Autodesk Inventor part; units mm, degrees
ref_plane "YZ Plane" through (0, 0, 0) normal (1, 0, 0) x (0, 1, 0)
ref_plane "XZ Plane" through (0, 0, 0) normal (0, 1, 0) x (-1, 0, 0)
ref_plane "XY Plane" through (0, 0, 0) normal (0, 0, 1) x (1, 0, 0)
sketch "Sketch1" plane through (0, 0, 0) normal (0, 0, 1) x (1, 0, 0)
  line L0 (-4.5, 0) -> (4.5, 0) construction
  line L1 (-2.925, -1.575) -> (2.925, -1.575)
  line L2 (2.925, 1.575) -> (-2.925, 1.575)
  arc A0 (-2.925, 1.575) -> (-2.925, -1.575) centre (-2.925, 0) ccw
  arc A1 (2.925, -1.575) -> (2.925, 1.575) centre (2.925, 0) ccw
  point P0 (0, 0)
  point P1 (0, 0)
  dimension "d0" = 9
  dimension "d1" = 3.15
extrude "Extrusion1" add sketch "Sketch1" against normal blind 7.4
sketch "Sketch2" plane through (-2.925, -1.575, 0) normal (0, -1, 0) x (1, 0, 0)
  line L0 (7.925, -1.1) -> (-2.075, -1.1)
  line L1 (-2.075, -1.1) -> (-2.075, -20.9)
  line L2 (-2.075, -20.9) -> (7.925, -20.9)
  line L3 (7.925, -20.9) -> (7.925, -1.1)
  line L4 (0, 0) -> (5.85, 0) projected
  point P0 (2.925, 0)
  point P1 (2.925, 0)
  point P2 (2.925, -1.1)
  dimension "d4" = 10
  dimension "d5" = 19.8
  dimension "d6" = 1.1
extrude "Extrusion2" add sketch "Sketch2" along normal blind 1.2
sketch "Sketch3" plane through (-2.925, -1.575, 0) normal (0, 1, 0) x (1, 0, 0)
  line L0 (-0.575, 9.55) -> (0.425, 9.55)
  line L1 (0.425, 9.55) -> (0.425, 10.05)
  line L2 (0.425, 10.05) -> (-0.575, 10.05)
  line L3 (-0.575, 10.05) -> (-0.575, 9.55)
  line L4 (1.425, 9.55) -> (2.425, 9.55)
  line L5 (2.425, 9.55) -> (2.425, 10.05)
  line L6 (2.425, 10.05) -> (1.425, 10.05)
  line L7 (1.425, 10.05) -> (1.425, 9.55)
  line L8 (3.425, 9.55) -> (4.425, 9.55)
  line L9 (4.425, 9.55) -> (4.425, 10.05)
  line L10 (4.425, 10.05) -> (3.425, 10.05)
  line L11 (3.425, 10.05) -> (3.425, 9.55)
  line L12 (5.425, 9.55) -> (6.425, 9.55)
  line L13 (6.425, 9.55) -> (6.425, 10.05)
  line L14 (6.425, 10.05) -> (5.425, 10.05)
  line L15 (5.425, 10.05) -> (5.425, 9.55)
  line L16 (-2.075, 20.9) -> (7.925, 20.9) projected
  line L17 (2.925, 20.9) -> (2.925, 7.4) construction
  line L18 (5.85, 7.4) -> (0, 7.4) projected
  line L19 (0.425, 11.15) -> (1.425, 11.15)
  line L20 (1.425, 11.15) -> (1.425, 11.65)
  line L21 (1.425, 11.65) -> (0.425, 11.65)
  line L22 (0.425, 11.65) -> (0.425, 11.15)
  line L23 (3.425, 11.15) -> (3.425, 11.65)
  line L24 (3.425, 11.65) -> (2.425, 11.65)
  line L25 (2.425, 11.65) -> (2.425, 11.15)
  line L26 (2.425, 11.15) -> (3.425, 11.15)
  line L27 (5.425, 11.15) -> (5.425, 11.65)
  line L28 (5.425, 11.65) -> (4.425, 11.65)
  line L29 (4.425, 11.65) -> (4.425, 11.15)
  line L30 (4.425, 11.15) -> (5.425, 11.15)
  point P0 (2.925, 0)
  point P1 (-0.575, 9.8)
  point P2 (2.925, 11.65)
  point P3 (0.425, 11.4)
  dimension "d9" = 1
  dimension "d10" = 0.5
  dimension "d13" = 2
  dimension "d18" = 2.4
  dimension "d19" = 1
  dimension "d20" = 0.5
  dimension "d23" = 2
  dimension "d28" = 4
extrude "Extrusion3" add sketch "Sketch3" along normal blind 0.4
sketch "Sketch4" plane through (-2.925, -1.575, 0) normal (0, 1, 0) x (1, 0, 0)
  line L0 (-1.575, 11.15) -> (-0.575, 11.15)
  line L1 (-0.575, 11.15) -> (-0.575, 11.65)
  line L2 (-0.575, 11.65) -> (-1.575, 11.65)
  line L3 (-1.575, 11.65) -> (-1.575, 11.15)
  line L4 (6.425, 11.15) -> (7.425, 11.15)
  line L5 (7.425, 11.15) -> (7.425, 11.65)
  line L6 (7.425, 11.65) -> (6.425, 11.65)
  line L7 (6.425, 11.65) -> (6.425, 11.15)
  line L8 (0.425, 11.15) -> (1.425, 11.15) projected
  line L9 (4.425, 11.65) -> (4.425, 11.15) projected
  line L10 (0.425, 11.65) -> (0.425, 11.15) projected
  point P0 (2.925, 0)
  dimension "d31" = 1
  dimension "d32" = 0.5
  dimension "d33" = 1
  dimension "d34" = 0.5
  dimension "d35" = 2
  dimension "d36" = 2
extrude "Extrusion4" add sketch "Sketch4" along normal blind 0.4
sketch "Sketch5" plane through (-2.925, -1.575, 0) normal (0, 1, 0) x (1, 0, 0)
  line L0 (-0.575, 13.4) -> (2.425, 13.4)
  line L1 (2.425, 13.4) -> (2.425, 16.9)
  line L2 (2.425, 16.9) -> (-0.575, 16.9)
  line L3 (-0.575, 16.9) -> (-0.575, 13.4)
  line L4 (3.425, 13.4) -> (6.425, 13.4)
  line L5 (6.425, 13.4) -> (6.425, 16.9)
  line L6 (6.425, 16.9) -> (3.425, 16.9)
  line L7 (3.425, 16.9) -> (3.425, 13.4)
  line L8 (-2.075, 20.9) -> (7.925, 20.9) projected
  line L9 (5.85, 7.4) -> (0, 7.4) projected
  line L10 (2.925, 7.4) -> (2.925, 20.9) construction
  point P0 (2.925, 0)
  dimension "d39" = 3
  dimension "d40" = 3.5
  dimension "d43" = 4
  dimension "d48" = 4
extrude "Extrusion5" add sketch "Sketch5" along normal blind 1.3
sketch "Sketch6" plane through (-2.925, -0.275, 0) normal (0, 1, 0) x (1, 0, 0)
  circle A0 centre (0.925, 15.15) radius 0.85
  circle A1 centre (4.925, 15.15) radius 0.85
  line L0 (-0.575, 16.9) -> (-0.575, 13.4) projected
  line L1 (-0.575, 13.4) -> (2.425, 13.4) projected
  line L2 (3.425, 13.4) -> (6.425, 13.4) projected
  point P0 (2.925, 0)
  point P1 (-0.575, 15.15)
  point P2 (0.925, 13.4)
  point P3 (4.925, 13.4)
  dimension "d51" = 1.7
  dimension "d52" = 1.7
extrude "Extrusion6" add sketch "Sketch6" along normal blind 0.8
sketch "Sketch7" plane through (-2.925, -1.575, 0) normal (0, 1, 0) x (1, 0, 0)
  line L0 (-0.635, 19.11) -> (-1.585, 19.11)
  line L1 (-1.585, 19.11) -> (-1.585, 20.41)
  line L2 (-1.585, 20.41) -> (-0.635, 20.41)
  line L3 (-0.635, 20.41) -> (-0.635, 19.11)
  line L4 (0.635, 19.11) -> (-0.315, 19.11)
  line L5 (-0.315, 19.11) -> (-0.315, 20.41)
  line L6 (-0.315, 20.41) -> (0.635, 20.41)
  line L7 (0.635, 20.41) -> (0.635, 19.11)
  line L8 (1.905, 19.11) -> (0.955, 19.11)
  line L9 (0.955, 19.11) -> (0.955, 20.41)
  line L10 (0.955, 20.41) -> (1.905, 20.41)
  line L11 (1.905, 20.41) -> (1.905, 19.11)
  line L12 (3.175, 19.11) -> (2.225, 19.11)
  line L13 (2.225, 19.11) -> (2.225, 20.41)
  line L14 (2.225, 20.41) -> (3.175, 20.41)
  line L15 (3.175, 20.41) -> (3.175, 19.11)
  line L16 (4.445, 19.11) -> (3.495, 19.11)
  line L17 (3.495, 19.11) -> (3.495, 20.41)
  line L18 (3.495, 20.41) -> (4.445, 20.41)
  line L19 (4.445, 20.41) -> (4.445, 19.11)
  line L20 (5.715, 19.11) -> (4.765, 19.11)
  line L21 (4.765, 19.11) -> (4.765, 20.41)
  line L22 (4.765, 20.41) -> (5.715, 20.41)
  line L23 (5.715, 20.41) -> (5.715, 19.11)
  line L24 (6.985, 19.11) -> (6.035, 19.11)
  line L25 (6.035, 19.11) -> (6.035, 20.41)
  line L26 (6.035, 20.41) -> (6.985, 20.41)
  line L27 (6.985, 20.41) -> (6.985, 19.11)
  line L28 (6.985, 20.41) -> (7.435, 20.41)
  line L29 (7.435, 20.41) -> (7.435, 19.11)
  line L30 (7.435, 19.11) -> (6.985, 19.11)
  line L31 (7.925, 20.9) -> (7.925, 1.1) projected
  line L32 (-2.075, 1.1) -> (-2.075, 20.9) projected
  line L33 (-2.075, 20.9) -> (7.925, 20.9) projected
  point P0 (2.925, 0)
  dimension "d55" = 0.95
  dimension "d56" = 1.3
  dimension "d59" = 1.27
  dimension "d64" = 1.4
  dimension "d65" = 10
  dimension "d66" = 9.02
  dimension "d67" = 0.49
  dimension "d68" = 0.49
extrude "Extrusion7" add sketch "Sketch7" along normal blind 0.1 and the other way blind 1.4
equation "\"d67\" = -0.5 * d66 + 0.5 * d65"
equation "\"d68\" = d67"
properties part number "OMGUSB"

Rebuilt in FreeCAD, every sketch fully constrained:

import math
import FreeCAD as App
import Part
import Sketcher

V = App.Vector

doc = App.newDocument("Part")
body = doc.addObject("PartDesign::Body", "Body")

# Sketch on XY plane
sketch1 = body.newObject("Sketcher::SketchObject", "Sketch")
sketch1.AttachmentSupport = (doc.getObject("XY_Plane"), [""])
sketch1.MapMode = "FlatFace"
sketch1.addGeometry(Part.ArcOfCircle(Part.Circle(V(-2.925, 0, 0), V(0, 0, 1), 1.575), math.radians(90), math.radians(270)), False)
sketch1.addGeometry(Part.LineSegment(V(-2.925, -1.575, 0), V(2.925, -1.575, 0)), False)
sketch1.addGeometry(Part.ArcOfCircle(Part.Circle(V(2.925, 0, 0), V(0, 0, 1), 1.575), math.radians(-90), math.radians(90)), False)
sketch1.addGeometry(Part.LineSegment(V(2.925, 1.575, 0), V(-2.925, 1.575, 0)), False)
sketch1.addConstraint(Sketcher.Constraint("Tangent", 0, 2, 1, 1))
sketch1.addConstraint(Sketcher.Constraint("Tangent", 1, 2, 2, 1))
sketch1.addConstraint(Sketcher.Constraint("Tangent", 2, 2, 3, 1))
sketch1.addConstraint(Sketcher.Constraint("Tangent", 3, 2, 0, 1))
sketch1.addConstraint(Sketcher.Constraint("Horizontal", 1))
sketch1.addConstraint(Sketcher.Constraint("Horizontal", 3))
sketch1.addConstraint(Sketcher.Constraint("Symmetric", 0, 3, 2, 3, -1, 1))
sketch1.addConstraint(Sketcher.Constraint("Radius", 0, 1.575))
sketch1.addConstraint(Sketcher.Constraint("DistanceX", 1, 1, 1, 2, 5.85))
pad1 = body.newObject("PartDesign::Pad", "Pad")
pad1.Profile = sketch1
pad1.Length = 7.4
pad1.Reversed = True

# Sketch on XZ plane
sketch2 = body.newObject("Sketcher::SketchObject", "Sketch001")
sketch2.AttachmentSupport = (doc.getObject("XZ_Plane"), [""])
sketch2.MapMode = "FlatFace"
sketch2.AttachmentOffset = App.Placement(V(0, 0, 1.575), App.Rotation())
sketch2.addGeometry(Part.LineSegment(V(5, -20.9, 0), V(5, -1.1, 0)), False)
sketch2.addGeometry(Part.LineSegment(V(5, -1.1, 0), V(-5, -1.1, 0)), False)
sketch2.addGeometry(Part.LineSegment(V(-5, -1.1, 0), V(-5, -20.9, 0)), False)
sketch2.addGeometry(Part.LineSegment(V(-5, -20.9, 0), V(5, -20.9, 0)), False)
sketch2.addConstraint(Sketcher.Constraint("Coincident", 0, 2, 1, 1))
sketch2.addConstraint(Sketcher.Constraint("Coincident", 1, 2, 2, 1))
sketch2.addConstraint(Sketcher.Constraint("Coincident", 2, 2, 3, 1))
sketch2.addConstraint(Sketcher.Constraint("Coincident", 3, 2, 0, 1))
sketch2.addConstraint(Sketcher.Constraint("Vertical", 0))
sketch2.addConstraint(Sketcher.Constraint("Horizontal", 1))
sketch2.addConstraint(Sketcher.Constraint("Vertical", 2))
sketch2.addConstraint(Sketcher.Constraint("Horizontal", 3))
sketch2.addConstraint(Sketcher.Constraint("DistanceX", 1, 2, 1, 1, 10.0))
sketch2.addConstraint(Sketcher.Constraint("DistanceY", 0, 1, 0, 2, 19.8))
sketch2.addConstraint(Sketcher.Constraint("DistanceY", 0, 2, -1, 1, 1.1))
sketch2.addConstraint(Sketcher.Constraint("DistanceX", -1, 1, 0, 2, 5.0))
pad2 = body.newObject("PartDesign::Pad", "Pad001")
pad2.Profile = sketch2
pad2.Length = 1.2

# Sketch on XZ plane
sketch3 = body.newObject("Sketcher::SketchObject", "Sketch002")
sketch3.AttachmentSupport = (doc.getObject("XZ_Plane"), [""])
sketch3.MapMode = "FlatFace"
sketch3.AttachmentOffset = App.Placement(V(0, 0, 1.575), App.Rotation())
sketch3.addGeometry(Part.LineSegment(V(-3.5, -10.05, 0), V(-3.5, -9.55, 0)), False)
sketch3.addGeometry(Part.LineSegment(V(-3.5, -9.55, 0), V(-2.5, -9.55, 0)), False)
sketch3.addGeometry(Part.LineSegment(V(-2.5, -9.55, 0), V(-2.5, -10.05, 0)), False)
sketch3.addGeometry(Part.LineSegment(V(-2.5, -10.05, 0), V(-3.5, -10.05, 0)), False)
sketch3.addGeometry(Part.LineSegment(V(-1.5, -10.05, 0), V(-1.5, -9.55, 0)), False)
sketch3.addGeometry(Part.LineSegment(V(-1.5, -9.55, 0), V(-0.5, -9.55, 0)), False)
sketch3.addGeometry(Part.LineSegment(V(-0.5, -9.55, 0), V(-0.5, -10.05, 0)), False)
sketch3.addGeometry(Part.LineSegment(V(-0.5, -10.05, 0), V(-1.5, -10.05, 0)), False)
sketch3.addGeometry(Part.LineSegment(V(0.5, -10.05, 0), V(0.5, -9.55, 0)), False)
sketch3.addGeometry(Part.LineSegment(V(0.5, -9.55, 0), V(1.5, -9.55, 0)), False)
sketch3.addGeometry(Part.LineSegment(V(1.5, -9.55, 0), V(1.5, -10.05, 0)), False)
sketch3.addGeometry(Part.LineSegment(V(1.5, -10.05, 0), V(0.5, -10.05, 0)), False)
sketch3.addGeometry(Part.LineSegment(V(2.5, -10.05, 0), V(2.5, -9.55, 0)), False)
sketch3.addGeometry(Part.LineSegment(V(2.5, -9.55, 0), V(3.5, -9.55, 0)), False)
sketch3.addGeometry(Part.LineSegment(V(3.5, -9.55, 0), V(3.5, -10.05, 0)), False)
sketch3.addGeometry(Part.LineSegment(V(3.5, -10.05, 0), V(2.5, -10.05, 0)), False)
sketch3.addGeometry(Part.LineSegment(V(-2.5, -11.65, 0), V(-2.5, -11.15, 0)), False)
sketch3.addGeometry(Part.LineSegment(V(-2.5, -11.15, 0), V(-1.5, -11.15, 0)), False)
sketch3.addGeometry(Part.LineSegment(V(-1.5, -11.15, 0), V(-1.5, -11.65, 0)), False)
sketch3.addGeometry(Part.LineSegment(V(-1.5, -11.65, 0), V(-2.5, -11.65, 0)), False)
sketch3.addGeometry(Part.LineSegment(V(-0.5, -11.15, 0), V(0.5, -11.15, 0)), False)
sketch3.addGeometry(Part.LineSegment(V(0.5, -11.15, 0), V(0.5, -11.65, 0)), False)
sketch3.addGeometry(Part.LineSegment(V(0.5, -11.65, 0), V(-0.5, -11.65, 0)), False)
sketch3.addGeometry(Part.LineSegment(V(-0.5, -11.65, 0), V(-0.5, -11.15, 0)), False)
sketch3.addGeometry(Part.LineSegment(V(1.5, -11.15, 0), V(2.5, -11.15, 0)), False)
sketch3.addGeometry(Part.LineSegment(V(2.5, -11.15, 0), V(2.5, -11.65, 0)), False)
sketch3.addGeometry(Part.LineSegment(V(2.5, -11.65, 0), V(1.5, -11.65, 0)), False)
sketch3.addGeometry(Part.LineSegment(V(1.5, -11.65, 0), V(1.5, -11.15, 0)), False)
sketch3.addConstraint(Sketcher.Constraint("Coincident", 0, 2, 1, 1))
sketch3.addConstraint(Sketcher.Constraint("Coincident", 1, 2, 2, 1))
sketch3.addConstraint(Sketcher.Constraint("Coincident", 2, 2, 3, 1))
sketch3.addConstraint(Sketcher.Constraint("Coincident", 3, 2, 0, 1))
sketch3.addConstraint(Sketcher.Constraint("Coincident", 4, 2, 5, 1))
sketch3.addConstraint(Sketcher.Constraint("Coincident", 5, 2, 6, 1))
sketch3.addConstraint(Sketcher.Constraint("Coincident", 6, 2, 7, 1))
sketch3.addConstraint(Sketcher.Constraint("Coincident", 7, 2, 4, 1))
sketch3.addConstraint(Sketcher.Constraint("Coincident", 8, 2, 9, 1))
sketch3.addConstraint(Sketcher.Constraint("Coincident", 9, 2, 10, 1))
sketch3.addConstraint(Sketcher.Constraint("Coincident", 10, 2, 11, 1))
sketch3.addConstraint(Sketcher.Constraint("Coincident", 11, 2, 8, 1))
sketch3.addConstraint(Sketcher.Constraint("Coincident", 12, 2, 13, 1))
sketch3.addConstraint(Sketcher.Constraint("Coincident", 13, 2, 14, 1))
sketch3.addConstraint(Sketcher.Constraint("Coincident", 14, 2, 15, 1))
sketch3.addConstraint(Sketcher.Constraint("Coincident", 15, 2, 12, 1))
sketch3.addConstraint(Sketcher.Constraint("Coincident", 16, 2, 17, 1))
sketch3.addConstraint(Sketcher.Constraint("Coincident", 17, 2, 18, 1))
sketch3.addConstraint(Sketcher.Constraint("Coincident", 18, 2, 19, 1))
sketch3.addConstraint(Sketcher.Constraint("Coincident", 19, 2, 16, 1))
sketch3.addConstraint(Sketcher.Constraint("Coincident", 20, 2, 21, 1))
sketch3.addConstraint(Sketcher.Constraint("Coincident", 21, 2, 22, 1))
sketch3.addConstraint(Sketcher.Constraint("Coincident", 22, 2, 23, 1))
sketch3.addConstraint(Sketcher.Constraint("Coincident", 23, 2, 20, 1))
sketch3.addConstraint(Sketcher.Constraint("Coincident", 24, 2, 25, 1))
sketch3.addConstraint(Sketcher.Constraint("Coincident", 25, 2, 26, 1))
sketch3.addConstraint(Sketcher.Constraint("Coincident", 26, 2, 27, 1))
sketch3.addConstraint(Sketcher.Constraint("Coincident", 27, 2, 24, 1))
sketch3.addConstraint(Sketcher.Constraint("Vertical", 0))
sketch3.addConstraint(Sketcher.Constraint("Horizontal", 1))
sketch3.addConstraint(Sketcher.Constraint("Vertical", 2))
sketch3.addConstraint(Sketcher.Constraint("Horizontal", 3))
sketch3.addConstraint(Sketcher.Constraint("Vertical", 4))
sketch3.addConstraint(Sketcher.Constraint("Horizontal", 5))
sketch3.addConstraint(Sketcher.Constraint("Vertical", 6))
sketch3.addConstraint(Sketcher.Constraint("Horizontal", 7))
sketch3.addConstraint(Sketcher.Constraint("Vertical", 8))
sketch3.addConstraint(Sketcher.Constraint("Horizontal", 9))
sketch3.addConstraint(Sketcher.Constraint("Vertical", 10))
sketch3.addConstraint(Sketcher.Constraint("Horizontal", 11))
sketch3.addConstraint(Sketcher.Constraint("Vertical", 12))
sketch3.addConstraint(Sketcher.Constraint("Horizontal", 13))
sketch3.addConstraint(Sketcher.Constraint("Vertical", 14))
sketch3.addConstraint(Sketcher.Constraint("Horizontal", 15))
sketch3.addConstraint(Sketcher.Constraint("Vertical", 16))
sketch3.addConstraint(Sketcher.Constraint("Horizontal", 17))
sketch3.addConstraint(Sketcher.Constraint("Vertical", 18))
sketch3.addConstraint(Sketcher.Constraint("Horizontal", 19))
sketch3.addConstraint(Sketcher.Constraint("Horizontal", 20))
sketch3.addConstraint(Sketcher.Constraint("Vertical", 21))
sketch3.addConstraint(Sketcher.Constraint("Horizontal", 22))
sketch3.addConstraint(Sketcher.Constraint("Vertical", 23))
sketch3.addConstraint(Sketcher.Constraint("Horizontal", 24))
sketch3.addConstraint(Sketcher.Constraint("Vertical", 25))
sketch3.addConstraint(Sketcher.Constraint("Horizontal", 26))
sketch3.addConstraint(Sketcher.Constraint("Vertical", 27))
sketch3.addConstraint(Sketcher.Constraint("Symmetric", 5, 2, 8, 2, -2))
sketch3.addConstraint(Sketcher.Constraint("Symmetric", 7, 2, 10, 2, -2))
sketch3.addConstraint(Sketcher.Constraint("Symmetric", 1, 2, 12, 2, -2))
sketch3.addConstraint(Sketcher.Constraint("Symmetric", 3, 2, 14, 2, -2))
sketch3.addConstraint(Sketcher.Constraint("Symmetric", 16, 2, 24, 2, -2))
sketch3.addConstraint(Sketcher.Constraint("Symmetric", 18, 2, 26, 2, -2))
sketch3.addConstraint(Sketcher.Constraint("Horizontal", 1, 2, 4, 2))
sketch3.addConstraint(Sketcher.Constraint("Horizontal", 3, 2, 6, 2))
sketch3.addConstraint(Sketcher.Constraint("Horizontal", 17, 2, 20, 2))
sketch3.addConstraint(Sketcher.Constraint("Horizontal", 19, 2, 21, 2))
sketch3.addConstraint(Sketcher.Constraint("Vertical", 2, 2, 16, 2))
sketch3.addConstraint(Sketcher.Constraint("Vertical", 7, 2, 17, 2))
sketch3.addConstraint(Sketcher.Constraint("Vertical", 11, 2, 20, 2))
sketch3.addConstraint(Sketcher.Constraint("Vertical", 6, 2, 22, 2))
sketch3.addConstraint(Sketcher.Constraint("Equal", 3, 5))
sketch3.addConstraint(Sketcher.Constraint("Equal", 15, 17))
sketch3.addConstraint(Sketcher.Constraint("Equal", 19, 20))
sketch3.addConstraint(Sketcher.Constraint("Equal", 14, 16))
sketch3.addConstraint(Sketcher.Constraint("DistanceX", 1, 1, 1, 2, 1.0))
sketch3.addConstraint(Sketcher.Constraint("DistanceY", 0, 1, 0, 2, 0.5))
sketch3.addConstraint(Sketcher.Constraint("DistanceY", 16, 2, 2, 2, 1.1))
sketch3.addConstraint(Sketcher.Constraint("DistanceY", 0, 2, -1, 1, 9.55))
pad3 = body.newObject("PartDesign::Pad", "Pad002")
pad3.Profile = sketch3
pad3.Length = 0.4
pad3.Reversed = True

# Sketch on XZ plane
sketch4 = body.newObject("Sketcher::SketchObject", "Sketch003")
sketch4.AttachmentSupport = (doc.getObject("XZ_Plane"), [""])
sketch4.MapMode = "FlatFace"
sketch4.AttachmentOffset = App.Placement(V(0, 0, 1.575), App.Rotation())
sketch4.addGeometry(Part.LineSegment(V(-4.5, -11.65, 0), V(-4.5, -11.15, 0)), False)
sketch4.addGeometry(Part.LineSegment(V(-4.5, -11.15, 0), V(-3.5, -11.15, 0)), False)
sketch4.addGeometry(Part.LineSegment(V(-3.5, -11.15, 0), V(-3.5, -11.65, 0)), False)
sketch4.addGeometry(Part.LineSegment(V(-3.5, -11.65, 0), V(-4.5, -11.65, 0)), False)
sketch4.addGeometry(Part.LineSegment(V(3.5, -11.65, 0), V(3.5, -11.15, 0)), False)
sketch4.addGeometry(Part.LineSegment(V(3.5, -11.15, 0), V(4.5, -11.15, 0)), False)
sketch4.addGeometry(Part.LineSegment(V(4.5, -11.15, 0), V(4.5, -11.65, 0)), False)
sketch4.addGeometry(Part.LineSegment(V(4.5, -11.65, 0), V(3.5, -11.65, 0)), False)
sketch4.addConstraint(Sketcher.Constraint("Coincident", 0, 2, 1, 1))
sketch4.addConstraint(Sketcher.Constraint("Coincident", 1, 2, 2, 1))
sketch4.addConstraint(Sketcher.Constraint("Coincident", 2, 2, 3, 1))
sketch4.addConstraint(Sketcher.Constraint("Coincident", 3, 2, 0, 1))
sketch4.addConstraint(Sketcher.Constraint("Coincident", 4, 2, 5, 1))
sketch4.addConstraint(Sketcher.Constraint("Coincident", 5, 2, 6, 1))
sketch4.addConstraint(Sketcher.Constraint("Coincident", 6, 2, 7, 1))
sketch4.addConstraint(Sketcher.Constraint("Coincident", 7, 2, 4, 1))
sketch4.addConstraint(Sketcher.Constraint("Vertical", 0))
sketch4.addConstraint(Sketcher.Constraint("Horizontal", 1))
sketch4.addConstraint(Sketcher.Constraint("Vertical", 2))
sketch4.addConstraint(Sketcher.Constraint("Horizontal", 3))
sketch4.addConstraint(Sketcher.Constraint("Vertical", 4))
sketch4.addConstraint(Sketcher.Constraint("Horizontal", 5))
sketch4.addConstraint(Sketcher.Constraint("Vertical", 6))
sketch4.addConstraint(Sketcher.Constraint("Horizontal", 7))
sketch4.addConstraint(Sketcher.Constraint("Symmetric", 1, 2, 4, 2, -2))
sketch4.addConstraint(Sketcher.Constraint("Symmetric", 3, 2, 6, 2, -2))
sketch4.addConstraint(Sketcher.Constraint("DistanceX", 1, 1, 1, 2, 1.0))
sketch4.addConstraint(Sketcher.Constraint("DistanceY", 0, 1, 0, 2, 0.5))
sketch4.addConstraint(Sketcher.Constraint("DistanceX", 1, 2, 4, 2, 7.0))
sketch4.addConstraint(Sketcher.Constraint("DistanceY", 0, 2, -1, 1, 11.15))
pad4 = body.newObject("PartDesign::Pad", "Pad003")
pad4.Profile = sketch4
pad4.Length = 0.4
pad4.Reversed = True

# Sketch on XZ plane
sketch5 = body.newObject("Sketcher::SketchObject", "Sketch004")
sketch5.AttachmentSupport = (doc.getObject("XZ_Plane"), [""])
sketch5.MapMode = "FlatFace"
sketch5.AttachmentOffset = App.Placement(V(0, 0, 1.575), App.Rotation())
sketch5.addGeometry(Part.LineSegment(V(-3.5, -16.9, 0), V(-3.5, -13.4, 0)), False)
sketch5.addGeometry(Part.LineSegment(V(-3.5, -13.4, 0), V(-0.5, -13.4, 0)), False)
sketch5.addGeometry(Part.LineSegment(V(-0.5, -13.4, 0), V(-0.5, -16.9, 0)), False)
sketch5.addGeometry(Part.LineSegment(V(-0.5, -16.9, 0), V(-3.5, -16.9, 0)), False)
sketch5.addGeometry(Part.LineSegment(V(0.5, -16.9, 0), V(0.5, -13.4, 0)), False)
sketch5.addGeometry(Part.LineSegment(V(0.5, -13.4, 0), V(3.5, -13.4, 0)), False)
sketch5.addGeometry(Part.LineSegment(V(3.5, -13.4, 0), V(3.5, -16.9, 0)), False)
sketch5.addGeometry(Part.LineSegment(V(3.5, -16.9, 0), V(0.5, -16.9, 0)), False)
sketch5.addConstraint(Sketcher.Constraint("Coincident", 0, 2, 1, 1))
sketch5.addConstraint(Sketcher.Constraint("Coincident", 1, 2, 2, 1))
sketch5.addConstraint(Sketcher.Constraint("Coincident", 2, 2, 3, 1))
sketch5.addConstraint(Sketcher.Constraint("Coincident", 3, 2, 0, 1))
sketch5.addConstraint(Sketcher.Constraint("Coincident", 4, 2, 5, 1))
sketch5.addConstraint(Sketcher.Constraint("Coincident", 5, 2, 6, 1))
sketch5.addConstraint(Sketcher.Constraint("Coincident", 6, 2, 7, 1))
sketch5.addConstraint(Sketcher.Constraint("Coincident", 7, 2, 4, 1))
sketch5.addConstraint(Sketcher.Constraint("Vertical", 0))
sketch5.addConstraint(Sketcher.Constraint("Horizontal", 1))
sketch5.addConstraint(Sketcher.Constraint("Vertical", 2))
sketch5.addConstraint(Sketcher.Constraint("Horizontal", 3))
sketch5.addConstraint(Sketcher.Constraint("Vertical", 4))
sketch5.addConstraint(Sketcher.Constraint("Horizontal", 5))
sketch5.addConstraint(Sketcher.Constraint("Vertical", 6))
sketch5.addConstraint(Sketcher.Constraint("Horizontal", 7))
sketch5.addConstraint(Sketcher.Constraint("Symmetric", 1, 2, 4, 2, -2))
sketch5.addConstraint(Sketcher.Constraint("Symmetric", 3, 2, 6, 2, -2))
sketch5.addConstraint(Sketcher.Constraint("DistanceX", 1, 1, 1, 2, 3.0))
sketch5.addConstraint(Sketcher.Constraint("DistanceY", 0, 1, 0, 2, 3.5))
sketch5.addConstraint(Sketcher.Constraint("DistanceX", 0, 2, 4, 2, 4.0))
sketch5.addConstraint(Sketcher.Constraint("DistanceY", 0, 2, -1, 1, 13.4))
pad5 = body.newObject("PartDesign::Pad", "Pad004")
pad5.Profile = sketch5
pad5.Length = 1.3
pad5.Reversed = True

# Sketch on XZ plane
sketch6 = body.newObject("Sketcher::SketchObject", "Sketch005")
sketch6.AttachmentSupport = (doc.getObject("XZ_Plane"), [""])
sketch6.MapMode = "FlatFace"
sketch6.AttachmentOffset = App.Placement(V(0, 0, 0.275), App.Rotation())
sketch6.addGeometry(Part.Circle(V(-2, -15.15, 0), V(0, 0, 1), 0.85), False)
sketch6.addGeometry(Part.Circle(V(2, -15.15, 0), V(0, 0, 1), 0.85), False)
sketch6.addConstraint(Sketcher.Constraint("Equal", 0, 1))
sketch6.addConstraint(Sketcher.Constraint("Symmetric", 0, 3, 1, 3, -2))
sketch6.addConstraint(Sketcher.Constraint("Diameter", 0, 1.7))
sketch6.addConstraint(Sketcher.Constraint("DistanceX", 0, 3, -1, 1, 2.0))
sketch6.addConstraint(Sketcher.Constraint("DistanceY", 0, 3, -1, 1, 15.15))
pad6 = body.newObject("PartDesign::Pad", "Pad005")
pad6.Profile = sketch6
pad6.Length = 0.8
pad6.Reversed = True

# Sketch on XZ plane
sketch7 = body.newObject("Sketcher::SketchObject", "Sketch006")
sketch7.AttachmentSupport = (doc.getObject("XZ_Plane"), [""])
sketch7.MapMode = "FlatFace"
sketch7.AttachmentOffset = App.Placement(V(0, 0, 1.575), App.Rotation())
sketch7.addGeometry(Part.LineSegment(V(-4.51, -19.11, 0), V(-3.56, -19.11, 0)), False)
sketch7.addGeometry(Part.LineSegment(V(-3.56, -19.11, 0), V(-3.56, -20.41, 0)), False)
sketch7.addGeometry(Part.LineSegment(V(-3.56, -20.41, 0), V(-4.51, -20.41, 0)), False)
sketch7.addGeometry(Part.LineSegment(V(-4.51, -20.41, 0), V(-4.51, -19.11, 0)), False)
sketch7.addGeometry(Part.LineSegment(V(-3.24, -19.11, 0), V(-2.29, -19.11, 0)), False)
sketch7.addGeometry(Part.LineSegment(V(-2.29, -19.11, 0), V(-2.29, -20.41, 0)), False)
sketch7.addGeometry(Part.LineSegment(V(-2.29, -20.41, 0), V(-3.24, -20.41, 0)), False)
sketch7.addGeometry(Part.LineSegment(V(-3.24, -20.41, 0), V(-3.24, -19.11, 0)), False)
sketch7.addGeometry(Part.LineSegment(V(-1.97, -19.11, 0), V(-1.02, -19.11, 0)), False)
sketch7.addGeometry(Part.LineSegment(V(-1.02, -19.11, 0), V(-1.02, -20.41, 0)), False)
sketch7.addGeometry(Part.LineSegment(V(-1.02, -20.41, 0), V(-1.97, -20.41, 0)), False)
sketch7.addGeometry(Part.LineSegment(V(-1.97, -20.41, 0), V(-1.97, -19.11, 0)), False)
sketch7.addGeometry(Part.LineSegment(V(-0.7, -19.11, 0), V(0.25, -19.11, 0)), False)
sketch7.addGeometry(Part.LineSegment(V(0.25, -19.11, 0), V(0.25, -20.41, 0)), False)
sketch7.addGeometry(Part.LineSegment(V(0.25, -20.41, 0), V(-0.7, -20.41, 0)), False)
sketch7.addGeometry(Part.LineSegment(V(-0.7, -20.41, 0), V(-0.7, -19.11, 0)), False)
sketch7.addGeometry(Part.LineSegment(V(0.57, -19.11, 0), V(1.52, -19.11, 0)), False)
sketch7.addGeometry(Part.LineSegment(V(1.52, -19.11, 0), V(1.52, -20.41, 0)), False)
sketch7.addGeometry(Part.LineSegment(V(1.52, -20.41, 0), V(0.57, -20.41, 0)), False)
sketch7.addGeometry(Part.LineSegment(V(0.57, -20.41, 0), V(0.57, -19.11, 0)), False)
sketch7.addGeometry(Part.LineSegment(V(1.84, -19.11, 0), V(2.79, -19.11, 0)), False)
sketch7.addGeometry(Part.LineSegment(V(2.79, -19.11, 0), V(2.79, -20.41, 0)), False)
sketch7.addGeometry(Part.LineSegment(V(2.79, -20.41, 0), V(1.84, -20.41, 0)), False)
sketch7.addGeometry(Part.LineSegment(V(1.84, -20.41, 0), V(1.84, -19.11, 0)), False)
sketch7.addGeometry(Part.LineSegment(V(3.11, -19.11, 0), V(4.51, -19.11, 0)), False)
sketch7.addGeometry(Part.LineSegment(V(4.51, -19.11, 0), V(4.51, -20.41, 0)), False)
sketch7.addGeometry(Part.LineSegment(V(4.51, -20.41, 0), V(3.11, -20.41, 0)), False)
sketch7.addGeometry(Part.LineSegment(V(3.11, -20.41, 0), V(3.11, -19.11, 0)), False)
sketch7.addConstraint(Sketcher.Constraint("Coincident", 0, 2, 1, 1))
sketch7.addConstraint(Sketcher.Constraint("Coincident", 1, 2, 2, 1))
sketch7.addConstraint(Sketcher.Constraint("Coincident", 2, 2, 3, 1))
sketch7.addConstraint(Sketcher.Constraint("Coincident", 3, 2, 0, 1))
sketch7.addConstraint(Sketcher.Constraint("Coincident", 4, 2, 5, 1))
sketch7.addConstraint(Sketcher.Constraint("Coincident", 5, 2, 6, 1))
sketch7.addConstraint(Sketcher.Constraint("Coincident", 6, 2, 7, 1))
sketch7.addConstraint(Sketcher.Constraint("Coincident", 7, 2, 4, 1))
sketch7.addConstraint(Sketcher.Constraint("Coincident", 8, 2, 9, 1))
sketch7.addConstraint(Sketcher.Constraint("Coincident", 9, 2, 10, 1))
sketch7.addConstraint(Sketcher.Constraint("Coincident", 10, 2, 11, 1))
sketch7.addConstraint(Sketcher.Constraint("Coincident", 11, 2, 8, 1))
sketch7.addConstraint(Sketcher.Constraint("Coincident", 12, 2, 13, 1))
sketch7.addConstraint(Sketcher.Constraint("Coincident", 13, 2, 14, 1))
sketch7.addConstraint(Sketcher.Constraint("Coincident", 14, 2, 15, 1))
sketch7.addConstraint(Sketcher.Constraint("Coincident", 15, 2, 12, 1))
sketch7.addConstraint(Sketcher.Constraint("Coincident", 16, 2, 17, 1))
sketch7.addConstraint(Sketcher.Constraint("Coincident", 17, 2, 18, 1))
sketch7.addConstraint(Sketcher.Constraint("Coincident", 18, 2, 19, 1))
sketch7.addConstraint(Sketcher.Constraint("Coincident", 19, 2, 16, 1))
sketch7.addConstraint(Sketcher.Constraint("Coincident", 20, 2, 21, 1))
sketch7.addConstraint(Sketcher.Constraint("Coincident", 21, 2, 22, 1))
sketch7.addConstraint(Sketcher.Constraint("Coincident", 22, 2, 23, 1))
sketch7.addConstraint(Sketcher.Constraint("Coincident", 23, 2, 20, 1))
sketch7.addConstraint(Sketcher.Constraint("Coincident", 24, 2, 25, 1))
sketch7.addConstraint(Sketcher.Constraint("Coincident", 25, 2, 26, 1))
sketch7.addConstraint(Sketcher.Constraint("Coincident", 26, 2, 27, 1))
sketch7.addConstraint(Sketcher.Constraint("Coincident", 27, 2, 24, 1))
sketch7.addConstraint(Sketcher.Constraint("Horizontal", 0))
sketch7.addConstraint(Sketcher.Constraint("Vertical", 1))
sketch7.addConstraint(Sketcher.Constraint("Horizontal", 2))
sketch7.addConstraint(Sketcher.Constraint("Vertical", 3))
sketch7.addConstraint(Sketcher.Constraint("Horizontal", 4))
sketch7.addConstraint(Sketcher.Constraint("Vertical", 5))
sketch7.addConstraint(Sketcher.Constraint("Horizontal", 6))
sketch7.addConstraint(Sketcher.Constraint("Vertical", 7))
sketch7.addConstraint(Sketcher.Constraint("Horizontal", 8))
sketch7.addConstraint(Sketcher.Constraint("Vertical", 9))
sketch7.addConstraint(Sketcher.Constraint("Horizontal", 10))
sketch7.addConstraint(Sketcher.Constraint("Vertical", 11))
sketch7.addConstraint(Sketcher.Constraint("Horizontal", 12))
sketch7.addConstraint(Sketcher.Constraint("Vertical", 13))
sketch7.addConstraint(Sketcher.Constraint("Horizontal", 14))
sketch7.addConstraint(Sketcher.Constraint("Vertical", 15))
sketch7.addConstraint(Sketcher.Constraint("Horizontal", 16))
sketch7.addConstraint(Sketcher.Constraint("Vertical", 17))
sketch7.addConstraint(Sketcher.Constraint("Horizontal", 18))
sketch7.addConstraint(Sketcher.Constraint("Vertical", 19))
sketch7.addConstraint(Sketcher.Constraint("Horizontal", 20))
sketch7.addConstraint(Sketcher.Constraint("Vertical", 21))
sketch7.addConstraint(Sketcher.Constraint("Horizontal", 22))
sketch7.addConstraint(Sketcher.Constraint("Vertical", 23))
sketch7.addConstraint(Sketcher.Constraint("Horizontal", 24))
sketch7.addConstraint(Sketcher.Constraint("Vertical", 25))
sketch7.addConstraint(Sketcher.Constraint("Horizontal", 26))
sketch7.addConstraint(Sketcher.Constraint("Vertical", 27))
sketch7.addConstraint(Sketcher.Constraint("Symmetric", 3, 2, 24, 2, -2))
sketch7.addConstraint(Sketcher.Constraint("Horizontal", 3, 2, 4, 2))
sketch7.addConstraint(Sketcher.Constraint("Horizontal", 2, 2, 5, 2))
sketch7.addConstraint(Sketcher.Constraint("Horizontal", 7, 2, 8, 2))
sketch7.addConstraint(Sketcher.Constraint("Horizontal", 6, 2, 9, 2))
sketch7.addConstraint(Sketcher.Constraint("Horizontal", 11, 2, 12, 2))
sketch7.addConstraint(Sketcher.Constraint("Horizontal", 10, 2, 13, 2))
sketch7.addConstraint(Sketcher.Constraint("Horizontal", 15, 2, 16, 2))
sketch7.addConstraint(Sketcher.Constraint("Horizontal", 14, 2, 17, 2))
sketch7.addConstraint(Sketcher.Constraint("Horizontal", 19, 2, 20, 2))
sketch7.addConstraint(Sketcher.Constraint("Horizontal", 18, 2, 21, 2))
sketch7.addConstraint(Sketcher.Constraint("Horizontal", 22, 2, 25, 2))
sketch7.addConstraint(Sketcher.Constraint("Equal", 2, 4))
sketch7.addConstraint(Sketcher.Constraint("Equal", 6, 8))
sketch7.addConstraint(Sketcher.Constraint("Equal", 10, 12))
sketch7.addConstraint(Sketcher.Constraint("Equal", 14, 16))
sketch7.addConstraint(Sketcher.Constraint("Equal", 18, 20))
sketch7.addConstraint(Sketcher.Constraint("DistanceX", 24, 1, 24, 2, 1.4))
sketch7.addConstraint(Sketcher.Constraint("DistanceY", 1, 2, 1, 1, 1.3))
sketch7.addConstraint(Sketcher.Constraint("DistanceX", 0, 1, 0, 2, 0.95))
sketch7.addConstraint(Sketcher.Constraint("DistanceX", 0, 2, 4, 2, 1.27))
sketch7.addConstraint(Sketcher.Constraint("DistanceX", 4, 2, 8, 2, 1.27))
sketch7.addConstraint(Sketcher.Constraint("DistanceX", 8, 2, 12, 2, 1.27))
sketch7.addConstraint(Sketcher.Constraint("DistanceX", 12, 2, 16, 2, 1.27))
sketch7.addConstraint(Sketcher.Constraint("DistanceX", 16, 2, 20, 2, 1.27))
sketch7.addConstraint(Sketcher.Constraint("DistanceX", 22, 2, 26, 2, 1.27))
sketch7.addConstraint(Sketcher.Constraint("DistanceY", 0, 2, -1, 1, 19.11))
pad7 = body.newObject("PartDesign::Pad", "Pad006")
pad7.Profile = sketch7
pad7.Type = "TwoLengths"
pad7.Length = 0.1
pad7.Length2 = 1.4
pad7.Reversed = True

doc.recompute()
